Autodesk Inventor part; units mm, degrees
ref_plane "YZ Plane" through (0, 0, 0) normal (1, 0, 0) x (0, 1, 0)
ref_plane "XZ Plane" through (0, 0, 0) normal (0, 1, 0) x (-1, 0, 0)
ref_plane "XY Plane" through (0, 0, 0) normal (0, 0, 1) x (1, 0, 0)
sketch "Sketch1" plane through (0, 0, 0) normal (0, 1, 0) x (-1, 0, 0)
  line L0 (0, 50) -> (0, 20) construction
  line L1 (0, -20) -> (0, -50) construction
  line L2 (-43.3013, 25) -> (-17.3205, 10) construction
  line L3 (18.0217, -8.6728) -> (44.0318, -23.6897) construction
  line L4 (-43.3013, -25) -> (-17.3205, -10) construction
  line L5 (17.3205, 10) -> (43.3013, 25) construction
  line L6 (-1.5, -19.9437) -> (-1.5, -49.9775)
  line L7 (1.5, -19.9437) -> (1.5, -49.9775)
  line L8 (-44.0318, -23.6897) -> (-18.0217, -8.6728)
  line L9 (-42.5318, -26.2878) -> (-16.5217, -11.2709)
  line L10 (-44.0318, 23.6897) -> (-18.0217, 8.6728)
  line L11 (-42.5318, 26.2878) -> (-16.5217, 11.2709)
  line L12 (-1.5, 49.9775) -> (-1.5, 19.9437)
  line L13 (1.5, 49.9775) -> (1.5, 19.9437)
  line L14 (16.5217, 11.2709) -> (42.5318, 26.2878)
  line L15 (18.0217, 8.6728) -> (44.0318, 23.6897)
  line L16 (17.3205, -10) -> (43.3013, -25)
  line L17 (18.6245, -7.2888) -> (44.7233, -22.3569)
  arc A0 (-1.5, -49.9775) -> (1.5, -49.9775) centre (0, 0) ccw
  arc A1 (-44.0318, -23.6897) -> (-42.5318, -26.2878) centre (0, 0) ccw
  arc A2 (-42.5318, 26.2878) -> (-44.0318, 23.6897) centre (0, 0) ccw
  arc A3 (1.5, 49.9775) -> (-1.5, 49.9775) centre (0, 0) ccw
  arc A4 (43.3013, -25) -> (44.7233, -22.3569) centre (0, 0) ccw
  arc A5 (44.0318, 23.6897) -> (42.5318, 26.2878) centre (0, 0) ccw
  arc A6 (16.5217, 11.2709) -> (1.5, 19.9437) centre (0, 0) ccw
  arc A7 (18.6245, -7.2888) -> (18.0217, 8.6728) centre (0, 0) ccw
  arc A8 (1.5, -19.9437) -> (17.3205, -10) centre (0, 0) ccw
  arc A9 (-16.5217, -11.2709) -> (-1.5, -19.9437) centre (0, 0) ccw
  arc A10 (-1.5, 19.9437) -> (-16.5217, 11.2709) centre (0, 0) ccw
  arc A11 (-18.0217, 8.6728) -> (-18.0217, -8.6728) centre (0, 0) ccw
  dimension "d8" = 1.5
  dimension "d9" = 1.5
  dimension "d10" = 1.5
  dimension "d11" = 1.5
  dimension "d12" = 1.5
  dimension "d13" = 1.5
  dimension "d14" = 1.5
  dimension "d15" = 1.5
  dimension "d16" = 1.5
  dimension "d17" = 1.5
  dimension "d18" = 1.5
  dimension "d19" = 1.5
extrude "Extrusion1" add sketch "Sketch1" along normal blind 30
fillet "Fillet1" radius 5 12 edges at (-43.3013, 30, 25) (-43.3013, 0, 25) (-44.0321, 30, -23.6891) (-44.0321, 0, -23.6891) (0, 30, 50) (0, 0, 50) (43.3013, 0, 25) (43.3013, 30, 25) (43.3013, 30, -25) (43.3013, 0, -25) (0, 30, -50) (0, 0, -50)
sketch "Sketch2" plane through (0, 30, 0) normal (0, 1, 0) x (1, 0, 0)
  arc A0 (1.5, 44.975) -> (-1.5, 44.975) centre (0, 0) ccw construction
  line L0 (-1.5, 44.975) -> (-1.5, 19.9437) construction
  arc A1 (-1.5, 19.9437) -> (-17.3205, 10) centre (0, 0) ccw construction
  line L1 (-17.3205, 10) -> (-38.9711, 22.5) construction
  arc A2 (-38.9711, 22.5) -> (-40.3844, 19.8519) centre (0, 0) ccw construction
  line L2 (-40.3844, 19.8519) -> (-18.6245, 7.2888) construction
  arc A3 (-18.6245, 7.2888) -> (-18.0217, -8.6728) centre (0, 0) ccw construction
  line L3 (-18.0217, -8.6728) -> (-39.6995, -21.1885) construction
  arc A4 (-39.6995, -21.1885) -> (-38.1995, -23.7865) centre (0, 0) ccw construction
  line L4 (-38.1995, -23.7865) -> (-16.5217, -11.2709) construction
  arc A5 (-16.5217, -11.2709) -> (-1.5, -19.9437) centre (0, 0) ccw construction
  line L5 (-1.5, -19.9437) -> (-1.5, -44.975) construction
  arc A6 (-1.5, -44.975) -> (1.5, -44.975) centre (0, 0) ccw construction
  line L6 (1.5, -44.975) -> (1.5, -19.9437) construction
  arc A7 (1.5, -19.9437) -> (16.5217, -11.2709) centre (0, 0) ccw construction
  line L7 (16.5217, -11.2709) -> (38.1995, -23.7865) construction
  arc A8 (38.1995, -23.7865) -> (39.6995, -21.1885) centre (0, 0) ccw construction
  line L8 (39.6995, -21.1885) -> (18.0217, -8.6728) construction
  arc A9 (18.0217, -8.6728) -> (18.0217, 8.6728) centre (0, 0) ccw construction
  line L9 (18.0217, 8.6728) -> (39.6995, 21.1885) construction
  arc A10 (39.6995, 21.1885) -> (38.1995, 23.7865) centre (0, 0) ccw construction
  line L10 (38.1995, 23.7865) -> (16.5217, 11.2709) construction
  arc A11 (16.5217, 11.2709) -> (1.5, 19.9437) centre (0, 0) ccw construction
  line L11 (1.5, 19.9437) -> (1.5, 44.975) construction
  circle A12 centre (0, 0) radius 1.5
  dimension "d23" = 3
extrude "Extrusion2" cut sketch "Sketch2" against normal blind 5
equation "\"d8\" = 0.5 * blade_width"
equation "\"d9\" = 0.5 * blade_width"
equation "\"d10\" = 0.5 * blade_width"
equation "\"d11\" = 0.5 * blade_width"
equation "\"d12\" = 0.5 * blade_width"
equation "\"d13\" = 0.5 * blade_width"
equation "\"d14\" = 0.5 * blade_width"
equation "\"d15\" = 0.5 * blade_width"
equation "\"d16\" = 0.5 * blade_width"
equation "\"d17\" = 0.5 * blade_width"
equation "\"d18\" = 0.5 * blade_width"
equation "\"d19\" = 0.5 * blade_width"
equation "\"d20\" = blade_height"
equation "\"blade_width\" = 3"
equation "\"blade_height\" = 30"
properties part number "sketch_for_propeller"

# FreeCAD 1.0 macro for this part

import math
import FreeCAD as App
import Part
import Sketcher

V = App.Vector
Q = App.Units.Quantity


def edges_at(feature, points):
    """Names of the edges that pass closest to the given points."""
    edges = feature.Shape.Edges
    near = lambda p: min(range(len(edges)), key=lambda i: edges[i].distToShape(Part.Vertex(*p))[0])
    return sorted({f"Edge{near(p) + 1}" for p in points})

doc = App.newDocument("Part")
params = doc.addObject("Spreadsheet::Sheet", "Params")
for row, (alias, value) in enumerate([
    ("sketch1_radius", "1.969 in"),
    ("sketch1_radius2", "1.968 in"),
    ("pad1_length", "1.1811024 in"),
    ("fillet_radius", "5 mm"),
    ("pocket1_length", "5 mm"),
], start=1):
    params.set(f"A{row}", alias)
    params.set(f"B{row}", "=" + value)
    params.setAlias(f"B{row}", alias)

body = doc.addObject("PartDesign::Body", "Body")

# Sketch on XZ plane
sketch1 = body.newObject("Sketcher::SketchObject", "Sketch")
sketch1.AttachmentSupport = (doc.getObject("XZ_Plane"), [""])
sketch1.MapMode = "FlatFace"
sketch1.addGeometry([
    Part.ArcOfCircle(Part.Circle(V(0, 0, 0), V(0, 0, 1), 20.000029), math.radians(-85.698784), math.radians(-34.301326)),  # 0
    Part.LineSegment(V(1.5, -19.9437, 0), V(1.5, -49.9775, 0)),  # 1
    Part.ArcOfCircle(Part.Circle(V(0, 0, 0), V(0, 0, 1), 50.000005), math.radians(-91.719131), math.radians(-88.280869)),  # 2
    Part.LineSegment(V(-1.5, -49.9775, 0), V(-1.5, -19.9437, 0)),  # 3
    Part.ArcOfCircle(Part.Circle(V(0, 0, 0), V(0, 0, 1), 19.999965), math.radians(-149.999988), math.radians(-94.301216)),  # 4
    Part.LineSegment(V(-17.3205, -10, 0), V(-43.3013, -25, 0)),  # 5
    Part.ArcOfCircle(Part.Circle(V(0.018999, 0.010592, 0), V(0, 0, 1), 50.021775), math.radians(-153.438696), math.radians(-150.000391)),  # 6
    Part.LineSegment(V(-44.7233, -22.3569, 0), V(-18.6245, -7.2888, 0)),  # 7
    Part.ArcOfCircle(Part.Circle(V(0, 0, 0), V(0, 0, 1), 20.000029), math.radians(154.301184), math.radians(201.373162)),  # 8
    Part.LineSegment(V(-18.0217, 8.6728, 0), V(-44.0318, 23.6897, 0)),  # 9
    Part.ArcOfCircle(Part.Circle(V(0.011092, -0.006184, 0), V(0, 0, 1), 50.01271), math.radians(148.281521), math.radians(151.718933)),  # 10
    Part.LineSegment(V(-42.5318, 26.2878, 0), V(-16.5217, 11.2709, 0)),  # 11
    Part.ArcOfCircle(Part.Circle(V(0, 0, 0), V(0, 0, 1), 20.000029), math.radians(94.301216), math.radians(145.698674)),  # 12
    Part.LineSegment(V(-1.5, 19.9437, 0), V(-1.5, 49.9775, 0)),  # 13
    Part.ArcOfCircle(Part.Circle(V(0, 0, 0), V(0, 0, 1), 50.000005), math.radians(88.280869), math.radians(91.719131)),  # 14
    Part.LineSegment(V(1.5, 49.9775, 0), V(1.5, 19.9437, 0)),  # 15
    Part.ArcOfCircle(Part.Circle(V(0, 0, 0), V(0, 0, 1), 19.999965), math.radians(34.301326), math.radians(85.698784)),  # 16
    Part.LineSegment(V(16.5217, 11.2709, 0), V(42.5318, 26.2878, 0)),  # 17
    Part.ArcOfCircle(Part.Circle(V(0.010896, 0.00651, 0), V(0, 0, 1), 49.987333), math.radians(28.280194), math.radians(31.719352)),  # 18
    Part.LineSegment(V(44.0318, 23.6897, 0), V(18.0217, 8.6728, 0)),  # 19
    Part.ArcOfCircle(Part.Circle(V(0, 0, 0), V(0, 0, 1), 19.999978), math.radians(-25.698816), math.radians(25.698816)),  # 20
    Part.LineSegment(V(18.0217, -8.6728, 0), V(44.0318, -23.6897, 0)),  # 21
    Part.ArcOfCircle(Part.Circle(V(-0.011092, 0.006184, 0), V(0, 0, 1), 50.01271), math.radians(-31.718479), math.radians(-28.281067)),  # 22
    Part.LineSegment(V(42.5318, -26.2878, 0), V(16.5217, -11.2709, 0)),  # 23
], False)
sketch1.addConstraint([
    Sketcher.Constraint("Coincident", 0, 1, 1, 1),
    Sketcher.Constraint("Coincident", 1, 2, 2, 2),
    Sketcher.Constraint("Coincident", 2, 1, 3, 1),
    Sketcher.Constraint("Coincident", 3, 2, 4, 2),
    Sketcher.Constraint("Coincident", 4, 1, 5, 1),
    Sketcher.Constraint("Coincident", 5, 2, 6, 2),
    Sketcher.Constraint("Coincident", 6, 1, 7, 1),
    Sketcher.Constraint("Coincident", 7, 2, 8, 2),
    Sketcher.Constraint("Coincident", 8, 1, 9, 1),
    Sketcher.Constraint("Coincident", 9, 2, 10, 2),
    Sketcher.Constraint("Coincident", 10, 1, 11, 1),
    Sketcher.Constraint("Coincident", 11, 2, 12, 2),
    Sketcher.Constraint("Coincident", 12, 1, 13, 1),
    Sketcher.Constraint("Coincident", 13, 2, 14, 2),
    Sketcher.Constraint("Coincident", 14, 1, 15, 1),
    Sketcher.Constraint("Coincident", 15, 2, 16, 2),
    Sketcher.Constraint("Coincident", 16, 1, 17, 1),
    Sketcher.Constraint("Coincident", 17, 2, 18, 2),
    Sketcher.Constraint("Coincident", 18, 1, 19, 1),
    Sketcher.Constraint("Coincident", 19, 2, 20, 2),
    Sketcher.Constraint("Coincident", 20, 1, 21, 1),
    Sketcher.Constraint("Coincident", 21, 2, 22, 2),
    Sketcher.Constraint("Coincident", 22, 1, 23, 1),
    Sketcher.Constraint("Coincident", 23, 2, 0, 2),
    Sketcher.Constraint("Vertical", 1),
    Sketcher.Constraint("Vertical", 3),
    Sketcher.Constraint("Vertical", 13),
    Sketcher.Constraint("Vertical", 15),
    Sketcher.Constraint("Coincident", 0, 3, -1, 1),
    Sketcher.Constraint("Coincident", 2, 3, -1, 1),
    Sketcher.Constraint("Coincident", 4, 3, -1, 1),
    Sketcher.Constraint("Coincident", 8, 3, -1, 1),
    Sketcher.Constraint("Coincident", 12, 3, -1, 1),
    Sketcher.Constraint("Coincident", 14, 3, -1, 1),
    Sketcher.Constraint("Coincident", 16, 3, -1, 1),
    Sketcher.Constraint("Coincident", 20, 3, -1, 1),
    Sketcher.Constraint("Equal", 0, 4),
    Sketcher.Constraint("Equal", 4, 8),
    Sketcher.Constraint("Equal", 8, 12),
    Sketcher.Constraint("Equal", 2, 14),
    Sketcher.Constraint("Equal", 12, 16),
    Sketcher.Constraint("Equal", 16, 20),
    Sketcher.Constraint("Equal", 10, 22),
    Sketcher.Constraint("Symmetric", 10, 3, 22, 3, -1, 1),
    Sketcher.Constraint("Symmetric", 18, 3, 22, 3, -2),
    Sketcher.Constraint("Symmetric", 10, 1, 17, 2, -2),
    Sketcher.Constraint("Symmetric", 9, 2, 18, 1, -2),
    Sketcher.Constraint("Parallel", 5, 7),
    Sketcher.Constraint("Parallel", 9, 11),
    Sketcher.Constraint("Parallel", 7, 17),
    Sketcher.Constraint("Parallel", 17, 19),
    Sketcher.Constraint("Parallel", 11, 21),
    Sketcher.Constraint("Parallel", 21, 23),
    Sketcher.Constraint("Horizontal", 1, 2, 2, 1),
    Sketcher.Constraint("Horizontal", 13, 2, 14, 1),
    Sketcher.Constraint("Horizontal", 11, 2, 16, 1),
    Sketcher.Constraint("Vertical", 3, 2, 12, 1),
    Sketcher.Constraint("Vertical", 19, 2, 20, 1),
    Sketcher.Constraint("Vertical", 17, 2, 22, 1),
    Sketcher.Constraint("Equal", 9, 11),
    Sketcher.Constraint("Angle", 5, Q("-150 deg")),
    Sketcher.Constraint("Radius", 10, Q("1.969 in")),
    Sketcher.Constraint("Radius", 18, Q("1.968 in")),
    Sketcher.Constraint("Radius", 0, Q("0.7874 in")),
    Sketcher.Constraint("Radius", 2, Q("1.9685 in")),
    Sketcher.Constraint("DistanceX", -1, 1, 0, 1, 1.5),
    Sketcher.Constraint("Radius", 6, 50.0218),
    Sketcher.Constraint("DistanceX", 9, 2, 10, 1, 1.5),
    Sketcher.Constraint("DistanceY", 6, 1, 3, 2, Q("0.095 in")),
    Sketcher.Constraint("Distance", 5, Q("1.1811 in")),
    Sketcher.Constraint("DistanceX", 4, 1, -1, 1, Q("0.6819 in")),
    Sketcher.Constraint("DistanceX", 10, 3, 6, 3, Q("0.0003 in")),
])
sketch1.setExpression("Constraints[61]", "Params.sketch1_radius")
sketch1.setExpression("Constraints[62]", "Params.sketch1_radius2")
pad1 = body.newObject("PartDesign::Pad", "Pad")
pad1.Profile = sketch1
pad1.setExpression("Length", "Params.pad1_length")
pad1.Reversed = True
doc.recompute()

fillet = body.newObject("PartDesign::Fillet", "Fillet")
fillet.Base = (pad1, edges_at(pad1, [
    (-43.301, 30, 25),
    (-43.301, 0, 25),
    (-44.032, 30, -23.689),
    (-44.032, 0, -23.689),
    (0, 30, 50),
    (0, 0, 50),
    (43.301, 0, 25),
    (43.301, 30, 25),
    (43.301, 30, -25),
    (43.301, 0, -25),
    (0, 30, -50),
    (0, 0, -50),
]))
fillet.setExpression("Radius", "Params.fillet_radius")

# Sketch on XZ plane
sketch2 = body.newObject("Sketcher::SketchObject", "Sketch001")
sketch2.AttachmentSupport = (doc.getObject("XZ_Plane"), [""])
sketch2.MapMode = "FlatFace"
sketch2.AttachmentOffset = App.Placement(V(0, 0, -1.1811024 * 25.4), App.Rotation())
sketch2.addGeometry(Part.Circle(V(0, 0, 0), V(0, 0, 1), 1.5), False)
sketch2.addConstraint([
    Sketcher.Constraint("Coincident", 0, 3, -1, 1),
    Sketcher.Constraint("Diameter", 0, Q("0.1181 in")),
])
pocket1 = body.newObject("PartDesign::Pocket", "Pocket")
pocket1.Profile = sketch2
pocket1.setExpression("Length", "Params.pocket1_length")
pocket1.Reversed = True

doc.recompute()
